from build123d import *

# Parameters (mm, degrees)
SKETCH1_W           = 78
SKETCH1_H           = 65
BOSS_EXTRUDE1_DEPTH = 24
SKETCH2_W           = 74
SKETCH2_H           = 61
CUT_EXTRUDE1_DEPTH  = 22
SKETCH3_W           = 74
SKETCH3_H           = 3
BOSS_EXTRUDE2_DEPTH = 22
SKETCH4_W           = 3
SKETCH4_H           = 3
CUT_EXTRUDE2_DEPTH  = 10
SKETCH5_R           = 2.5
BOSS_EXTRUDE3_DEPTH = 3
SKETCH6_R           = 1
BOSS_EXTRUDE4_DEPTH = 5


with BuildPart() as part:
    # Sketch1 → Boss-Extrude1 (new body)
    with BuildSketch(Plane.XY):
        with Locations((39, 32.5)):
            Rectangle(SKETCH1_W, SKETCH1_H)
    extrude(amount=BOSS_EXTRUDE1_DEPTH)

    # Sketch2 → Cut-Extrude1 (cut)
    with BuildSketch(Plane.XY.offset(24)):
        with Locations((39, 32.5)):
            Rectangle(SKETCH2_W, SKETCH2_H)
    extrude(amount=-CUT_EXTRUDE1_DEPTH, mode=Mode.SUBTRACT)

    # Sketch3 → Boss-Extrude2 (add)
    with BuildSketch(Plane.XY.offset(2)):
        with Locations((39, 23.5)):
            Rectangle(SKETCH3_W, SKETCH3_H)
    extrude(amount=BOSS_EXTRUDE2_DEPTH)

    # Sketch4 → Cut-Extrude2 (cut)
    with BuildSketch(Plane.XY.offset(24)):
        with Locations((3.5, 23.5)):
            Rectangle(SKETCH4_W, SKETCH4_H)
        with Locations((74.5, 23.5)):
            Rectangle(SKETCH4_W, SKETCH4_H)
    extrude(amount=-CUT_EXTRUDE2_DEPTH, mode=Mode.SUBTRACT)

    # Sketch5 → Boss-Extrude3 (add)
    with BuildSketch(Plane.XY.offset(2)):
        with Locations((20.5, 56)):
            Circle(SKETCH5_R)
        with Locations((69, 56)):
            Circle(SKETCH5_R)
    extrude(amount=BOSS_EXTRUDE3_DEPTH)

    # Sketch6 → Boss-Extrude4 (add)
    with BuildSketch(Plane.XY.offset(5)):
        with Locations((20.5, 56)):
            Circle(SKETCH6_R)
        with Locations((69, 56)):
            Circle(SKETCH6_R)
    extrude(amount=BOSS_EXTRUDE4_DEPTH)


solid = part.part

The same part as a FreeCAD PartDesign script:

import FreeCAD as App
import Part
import Sketcher
from FreeCAD import Vector


def add_polygon(sketch, points):
    """Adds a closed chain of lines whose ends are joined by coincident constraints."""
    first, n = sketch.GeometryCount, len(points)
    for a, b in zip(points, points[1:] + points[:1]):
        sketch.addGeometry(Part.LineSegment(App.Vector(*a, 0), App.Vector(*b, 0)), False)
    for i in range(n):
        sketch.addConstraint(Sketcher.Constraint("Coincident", first + i, 2, first + (i + 1) % n, 1))

doc = App.newDocument("Part")
body = doc.addObject("PartDesign::Body", "Body")

# Sketch on XY plane
sketch1 = body.newObject("Sketcher::SketchObject", "Sketch")
sketch1.AttachmentSupport = (doc.getObject("XY_Plane"), [""])
sketch1.MapMode = "FlatFace"
add_polygon(sketch1, [(0, 65), (0, 0), (78, 0), (78, 65)])  # lines 0-3
sketch1.addConstraint(Sketcher.Constraint("Vertical", 0))
sketch1.addConstraint(Sketcher.Constraint("Horizontal", 1))
sketch1.addConstraint(Sketcher.Constraint("Vertical", 2))
sketch1.addConstraint(Sketcher.Constraint("Horizontal", 3))
sketch1.addConstraint(Sketcher.Constraint("Coincident", 0, 2, -1, 1))
sketch1.addConstraint(Sketcher.Constraint("DistanceX", 1, 1, 1, 2, 78.0))
sketch1.addConstraint(Sketcher.Constraint("DistanceY", 0, 2, 0, 1, 65.0))
pad1 = body.newObject("PartDesign::Pad", "Pad")
pad1.Profile = sketch1
pad1.Length = 24

# Sketch on XY plane
sketch2 = body.newObject("Sketcher::SketchObject", "Sketch001")
sketch2.AttachmentSupport = (doc.getObject("XY_Plane"), [""])
sketch2.MapMode = "FlatFace"
sketch2.AttachmentOffset = App.Placement(Vector(0, 0, 24), App.Rotation())
add_polygon(sketch2, [(2, 63), (2, 2), (76, 2), (76, 63)])  # lines 0-3
sketch2.addConstraint(Sketcher.Constraint("Vertical", 0))
sketch2.addConstraint(Sketcher.Constraint("Horizontal", 1))
sketch2.addConstraint(Sketcher.Constraint("Vertical", 2))
sketch2.addConstraint(Sketcher.Constraint("Horizontal", 3))
sketch2.addConstraint(Sketcher.Constraint("DistanceX", 1, 1, 1, 2, 74.0))
sketch2.addConstraint(Sketcher.Constraint("DistanceY", 0, 2, 0, 1, 61.0))
sketch2.addConstraint(Sketcher.Constraint("DistanceX", -1, 1, 0, 2, 2.0))
sketch2.addConstraint(Sketcher.Constraint("DistanceY", -1, 1, 0, 2, 2.0))
pocket1 = body.newObject("PartDesign::Pocket", "Pocket")
pocket1.Profile = sketch2
pocket1.Length = 22

# Sketch on XY plane
sketch3 = body.newObject("Sketcher::SketchObject", "Sketch002")
sketch3.AttachmentSupport = (doc.getObject("XY_Plane"), [""])
sketch3.MapMode = "FlatFace"
sketch3.AttachmentOffset = App.Placement(Vector(0, 0, 2), App.Rotation())
add_polygon(sketch3, [(2, 25), (2, 22), (76, 22), (76, 25)])  # lines 0-3
sketch3.addConstraint(Sketcher.Constraint("Vertical", 0))
sketch3.addConstraint(Sketcher.Constraint("Horizontal", 1))
sketch3.addConstraint(Sketcher.Constraint("Vertical", 2))
sketch3.addConstraint(Sketcher.Constraint("Horizontal", 3))
sketch3.addConstraint(Sketcher.Constraint("DistanceX", 1, 1, 1, 2, 74.0))
sketch3.addConstraint(Sketcher.Constraint("DistanceY", 0, 2, 0, 1, 3.0))
sketch3.addConstraint(Sketcher.Constraint("DistanceX", -1, 1, 0, 2, 2.0))
sketch3.addConstraint(Sketcher.Constraint("DistanceY", -1, 1, 0, 2, 22.0))
pad2 = body.newObject("PartDesign::Pad", "Pad001")
pad2.Profile = sketch3
pad2.Length = 22

# Sketch on XY plane
sketch4 = body.newObject("Sketcher::SketchObject", "Sketch003")
sketch4.AttachmentSupport = (doc.getObject("XY_Plane"), [""])
sketch4.MapMode = "FlatFace"
sketch4.AttachmentOffset = App.Placement(Vector(0, 0, 24), App.Rotation())
add_polygon(sketch4, [(2, 25), (2, 22), (5, 22), (5, 25)])  # lines 0-3
add_polygon(sketch4, [(73, 25), (73, 22), (76, 22), (76, 25)])  # lines 4-7
sketch4.addConstraint(Sketcher.Constraint("Vertical", 0))
sketch4.addConstraint(Sketcher.Constraint("Horizontal", 1))
sketch4.addConstraint(Sketcher.Constraint("Vertical", 2))
sketch4.addConstraint(Sketcher.Constraint("Horizontal", 3))
sketch4.addConstraint(Sketcher.Constraint("Vertical", 4))
sketch4.addConstraint(Sketcher.Constraint("Horizontal", 5))
sketch4.addConstraint(Sketcher.Constraint("Vertical", 6))
sketch4.addConstraint(Sketcher.Constraint("Horizontal", 7))
sketch4.addConstraint(Sketcher.Constraint("Horizontal", 1, 2, 4, 2))
sketch4.addConstraint(Sketcher.Constraint("Horizontal", 3, 2, 6, 2))
sketch4.addConstraint(Sketcher.Constraint("Equal", 3, 5))
sketch4.addConstraint(Sketcher.Constraint("Equal", 7, 0))
sketch4.addConstraint(Sketcher.Constraint("DistanceX", 1, 1, 1, 2, 3.0))
sketch4.addConstraint(Sketcher.Constraint("DistanceX", -1, 1, 0, 2, 2.0))
sketch4.addConstraint(Sketcher.Constraint("DistanceY", -1, 1, 0, 2, 22.0))
sketch4.addConstraint(Sketcher.Constraint("DistanceX", -1, 1, 4, 2, 73.0))
pocket2 = body.newObject("PartDesign::Pocket", "Pocket001")
pocket2.Profile = sketch4
pocket2.Length = 10

# Sketch on XY plane
sketch5 = body.newObject("Sketcher::SketchObject", "Sketch004")
sketch5.AttachmentSupport = (doc.getObject("XY_Plane"), [""])
sketch5.MapMode = "FlatFace"
sketch5.AttachmentOffset = App.Placement(Vector(0, 0, 2), App.Rotation())
sketch5.addGeometry(Part.Circle(Vector(20.5, 56, 0), Vector(0, 0, 1), 2.5), False)
sketch5.addGeometry(Part.Circle(Vector(69, 56, 0), Vector(0, 0, 1), 2.5), False)
sketch5.addConstraint(Sketcher.Constraint("Equal", 0, 1))
sketch5.addConstraint(Sketcher.Constraint("Horizontal", 0, 3, 1, 3))
sketch5.addConstraint(Sketcher.Constraint("Diameter", 0, 5.0))
sketch5.addConstraint(Sketcher.Constraint("DistanceY", -1, 1, 0, 3, 56.0))
sketch5.addConstraint(Sketcher.Constraint("DistanceX", -1, 1, 1, 3, 69.0))
sketch5.addConstraint(Sketcher.Constraint("DistanceX", -1, 1, 0, 3, 20.5))
pad3 = body.newObject("PartDesign::Pad", "Pad002")
pad3.Profile = sketch5
pad3.Length = 3

# Sketch on XY plane
sketch6 = body.newObject("Sketcher::SketchObject", "Sketch005")
sketch6.AttachmentSupport = (doc.getObject("XY_Plane"), [""])
sketch6.MapMode = "FlatFace"
sketch6.AttachmentOffset = App.Placement(Vector(0, 0, 5), App.Rotation())
sketch6.addGeometry(Part.Circle(Vector(20.5, 56, 0), Vector(0, 0, 1), 1), False)
sketch6.addGeometry(Part.Circle(Vector(69, 56, 0), Vector(0, 0, 1), 1), False)
sketch6.addConstraint(Sketcher.Constraint("Equal", 0, 1))
sketch6.addConstraint(Sketcher.Constraint("Horizontal", 0, 3, 1, 3))
sketch6.addConstraint(Sketcher.Constraint("Diameter", 0, 2.0))
sketch6.addConstraint(Sketcher.Constraint("DistanceY", -1, 1, 0, 3, 56.0))
sketch6.addConstraint(Sketcher.Constraint("DistanceX", -1, 1, 1, 3, 69.0))
sketch6.addConstraint(Sketcher.Constraint("DistanceX", -1, 1, 0, 3, 20.5))
pad4 = body.newObject("PartDesign::Pad", "Pad003")
pad4.Profile = sketch6
pad4.Length = 5

doc.recompute()
